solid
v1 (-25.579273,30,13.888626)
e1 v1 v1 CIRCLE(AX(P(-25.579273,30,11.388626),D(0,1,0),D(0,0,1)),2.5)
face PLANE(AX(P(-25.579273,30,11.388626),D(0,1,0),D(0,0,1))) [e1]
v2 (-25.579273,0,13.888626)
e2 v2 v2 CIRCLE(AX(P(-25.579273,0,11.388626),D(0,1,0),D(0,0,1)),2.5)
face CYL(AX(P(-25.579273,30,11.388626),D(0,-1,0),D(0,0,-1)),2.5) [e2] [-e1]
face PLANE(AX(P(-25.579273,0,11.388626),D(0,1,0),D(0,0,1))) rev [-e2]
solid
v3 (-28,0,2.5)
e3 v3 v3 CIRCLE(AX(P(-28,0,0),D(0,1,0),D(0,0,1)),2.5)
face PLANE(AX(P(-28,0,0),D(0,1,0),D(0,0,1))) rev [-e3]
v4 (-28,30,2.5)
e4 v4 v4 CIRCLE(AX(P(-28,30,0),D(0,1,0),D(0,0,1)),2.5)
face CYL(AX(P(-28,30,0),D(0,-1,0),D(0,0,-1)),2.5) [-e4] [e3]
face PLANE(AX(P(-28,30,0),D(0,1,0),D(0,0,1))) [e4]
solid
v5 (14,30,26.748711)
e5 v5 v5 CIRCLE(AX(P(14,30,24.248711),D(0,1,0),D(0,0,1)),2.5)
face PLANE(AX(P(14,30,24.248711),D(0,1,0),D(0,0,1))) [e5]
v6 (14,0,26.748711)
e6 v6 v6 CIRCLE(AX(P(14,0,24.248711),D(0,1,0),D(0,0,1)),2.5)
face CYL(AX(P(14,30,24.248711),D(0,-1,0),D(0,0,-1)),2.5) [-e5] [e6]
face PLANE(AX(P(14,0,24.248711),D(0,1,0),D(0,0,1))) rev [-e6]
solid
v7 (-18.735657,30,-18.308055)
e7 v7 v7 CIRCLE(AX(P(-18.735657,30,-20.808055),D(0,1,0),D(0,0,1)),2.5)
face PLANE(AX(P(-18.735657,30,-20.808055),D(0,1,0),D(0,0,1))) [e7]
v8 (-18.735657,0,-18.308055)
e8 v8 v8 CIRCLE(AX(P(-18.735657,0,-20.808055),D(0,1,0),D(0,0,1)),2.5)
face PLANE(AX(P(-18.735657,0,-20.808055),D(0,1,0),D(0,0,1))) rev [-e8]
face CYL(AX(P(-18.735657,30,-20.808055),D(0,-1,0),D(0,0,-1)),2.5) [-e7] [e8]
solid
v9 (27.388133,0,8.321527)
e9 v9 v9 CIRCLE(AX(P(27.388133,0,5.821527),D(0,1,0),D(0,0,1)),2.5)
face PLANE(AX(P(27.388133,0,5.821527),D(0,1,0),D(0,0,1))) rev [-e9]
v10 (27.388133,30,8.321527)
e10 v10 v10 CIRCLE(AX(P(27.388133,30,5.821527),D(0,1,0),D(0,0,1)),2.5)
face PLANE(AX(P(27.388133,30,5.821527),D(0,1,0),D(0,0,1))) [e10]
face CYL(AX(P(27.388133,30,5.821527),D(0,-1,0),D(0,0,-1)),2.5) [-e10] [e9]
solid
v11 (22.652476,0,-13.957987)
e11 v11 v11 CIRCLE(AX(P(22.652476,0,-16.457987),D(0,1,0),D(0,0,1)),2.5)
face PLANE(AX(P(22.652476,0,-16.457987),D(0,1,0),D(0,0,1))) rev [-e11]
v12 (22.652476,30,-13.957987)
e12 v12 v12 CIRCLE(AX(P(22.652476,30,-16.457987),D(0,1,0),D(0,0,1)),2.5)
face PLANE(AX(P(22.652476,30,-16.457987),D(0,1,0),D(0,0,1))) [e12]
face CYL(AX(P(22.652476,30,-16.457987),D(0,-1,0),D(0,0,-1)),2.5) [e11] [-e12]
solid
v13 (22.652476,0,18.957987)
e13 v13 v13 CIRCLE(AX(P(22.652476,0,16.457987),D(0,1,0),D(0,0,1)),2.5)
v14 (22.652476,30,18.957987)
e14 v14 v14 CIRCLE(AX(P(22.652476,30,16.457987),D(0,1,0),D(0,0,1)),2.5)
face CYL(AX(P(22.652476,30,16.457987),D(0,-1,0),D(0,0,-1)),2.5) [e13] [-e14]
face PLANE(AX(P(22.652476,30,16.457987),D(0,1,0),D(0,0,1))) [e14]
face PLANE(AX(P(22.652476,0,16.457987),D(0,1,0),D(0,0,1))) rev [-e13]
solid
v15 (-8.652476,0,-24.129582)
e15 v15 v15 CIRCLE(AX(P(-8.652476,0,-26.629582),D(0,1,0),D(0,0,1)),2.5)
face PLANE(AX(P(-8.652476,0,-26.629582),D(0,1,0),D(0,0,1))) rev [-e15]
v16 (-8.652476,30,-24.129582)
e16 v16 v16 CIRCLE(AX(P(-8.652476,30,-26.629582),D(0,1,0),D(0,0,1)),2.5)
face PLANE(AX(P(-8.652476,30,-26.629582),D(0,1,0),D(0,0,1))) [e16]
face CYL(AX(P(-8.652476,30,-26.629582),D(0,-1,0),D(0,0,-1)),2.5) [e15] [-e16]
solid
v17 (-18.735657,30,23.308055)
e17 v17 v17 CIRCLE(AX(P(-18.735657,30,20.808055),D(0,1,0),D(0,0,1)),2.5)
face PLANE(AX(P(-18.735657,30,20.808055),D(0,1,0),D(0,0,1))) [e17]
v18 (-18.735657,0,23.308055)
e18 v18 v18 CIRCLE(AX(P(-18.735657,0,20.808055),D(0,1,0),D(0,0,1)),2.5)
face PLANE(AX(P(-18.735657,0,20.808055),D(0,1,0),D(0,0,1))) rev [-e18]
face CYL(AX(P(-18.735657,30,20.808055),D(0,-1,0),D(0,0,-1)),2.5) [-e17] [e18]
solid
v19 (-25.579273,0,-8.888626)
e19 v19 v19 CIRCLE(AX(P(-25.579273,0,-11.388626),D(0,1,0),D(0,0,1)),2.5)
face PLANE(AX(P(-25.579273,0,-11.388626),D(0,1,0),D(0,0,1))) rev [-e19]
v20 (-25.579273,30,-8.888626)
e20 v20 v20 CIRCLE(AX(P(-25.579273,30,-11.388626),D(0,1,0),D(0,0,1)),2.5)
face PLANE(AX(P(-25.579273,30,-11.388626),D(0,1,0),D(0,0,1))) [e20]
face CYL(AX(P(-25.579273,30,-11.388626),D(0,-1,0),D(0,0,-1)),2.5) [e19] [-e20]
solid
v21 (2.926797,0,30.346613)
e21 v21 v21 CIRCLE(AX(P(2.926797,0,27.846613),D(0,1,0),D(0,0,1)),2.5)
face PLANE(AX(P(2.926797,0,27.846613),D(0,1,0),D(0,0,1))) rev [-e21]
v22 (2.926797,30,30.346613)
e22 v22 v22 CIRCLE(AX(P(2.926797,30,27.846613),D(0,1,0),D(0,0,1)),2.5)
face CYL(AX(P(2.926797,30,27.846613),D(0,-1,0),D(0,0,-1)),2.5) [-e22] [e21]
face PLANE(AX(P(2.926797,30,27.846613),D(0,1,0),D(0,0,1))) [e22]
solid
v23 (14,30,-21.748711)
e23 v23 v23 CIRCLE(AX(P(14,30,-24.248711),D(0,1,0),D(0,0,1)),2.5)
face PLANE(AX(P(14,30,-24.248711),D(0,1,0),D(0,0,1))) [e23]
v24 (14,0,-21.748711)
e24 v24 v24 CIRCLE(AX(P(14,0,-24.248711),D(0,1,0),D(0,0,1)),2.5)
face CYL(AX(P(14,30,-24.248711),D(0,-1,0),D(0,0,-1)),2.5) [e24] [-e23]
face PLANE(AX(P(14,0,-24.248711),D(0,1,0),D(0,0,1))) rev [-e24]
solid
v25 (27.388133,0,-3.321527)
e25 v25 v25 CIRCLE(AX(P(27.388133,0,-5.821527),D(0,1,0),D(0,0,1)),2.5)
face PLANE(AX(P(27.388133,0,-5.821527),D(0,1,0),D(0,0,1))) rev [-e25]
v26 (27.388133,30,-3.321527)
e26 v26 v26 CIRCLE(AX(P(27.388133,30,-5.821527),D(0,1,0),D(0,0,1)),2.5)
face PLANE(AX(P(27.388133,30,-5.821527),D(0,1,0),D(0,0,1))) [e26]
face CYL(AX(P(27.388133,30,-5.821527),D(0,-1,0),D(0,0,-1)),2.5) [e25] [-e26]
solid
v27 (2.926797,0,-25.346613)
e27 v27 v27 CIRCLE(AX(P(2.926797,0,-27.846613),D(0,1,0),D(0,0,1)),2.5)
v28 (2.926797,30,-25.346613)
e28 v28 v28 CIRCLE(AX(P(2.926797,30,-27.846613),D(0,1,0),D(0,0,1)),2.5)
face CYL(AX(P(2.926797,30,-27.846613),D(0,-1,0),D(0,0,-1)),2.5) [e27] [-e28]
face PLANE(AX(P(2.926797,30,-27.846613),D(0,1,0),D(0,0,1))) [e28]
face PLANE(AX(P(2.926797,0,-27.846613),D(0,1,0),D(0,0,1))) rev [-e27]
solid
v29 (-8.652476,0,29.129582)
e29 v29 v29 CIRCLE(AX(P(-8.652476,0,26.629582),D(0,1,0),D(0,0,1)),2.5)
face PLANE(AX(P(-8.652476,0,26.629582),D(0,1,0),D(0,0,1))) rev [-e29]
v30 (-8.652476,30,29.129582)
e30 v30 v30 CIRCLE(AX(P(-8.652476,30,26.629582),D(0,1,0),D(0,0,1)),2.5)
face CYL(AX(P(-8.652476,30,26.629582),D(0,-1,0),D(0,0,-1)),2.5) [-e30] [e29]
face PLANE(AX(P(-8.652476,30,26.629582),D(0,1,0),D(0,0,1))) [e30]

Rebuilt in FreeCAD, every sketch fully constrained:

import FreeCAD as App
import Part
import Sketcher

V = App.Vector
Q = App.Units.Quantity

doc = App.newDocument("Part")
params = doc.addObject("Spreadsheet::Sheet", "Params")
for row, (alias, value) in enumerate([
    ("sketch1_diameter", "5 mm"),
    ("pad1_length", "30 mm"),
    ("sketch2_diameter", "5 mm"),
    ("pad2_length", "30 mm"),
    ("sketch3_diameter", "5 mm"),
    ("pad3_length", "30 mm"),
    ("sketch4_diameter", "5 mm"),
    ("pad4_length", "30 mm"),
    ("sketch5_diameter", "5 mm"),
    ("pad5_length", "30 mm"),
    ("sketch6_diameter", "5 mm"),
    ("pad6_length", "30 mm"),
    ("sketch7_diameter", "5 mm"),
    ("pad7_length", "30 mm"),
    ("sketch8_diameter", "5 mm"),
    ("pad8_length", "30 mm"),
    ("sketch9_diameter", "5 mm"),
    ("pad9_length", "30 mm"),
    ("sketch10_diameter", "5 mm"),
    ("pad10_length", "30 mm"),
    ("sketch11_diameter", "5 mm"),
    ("pad11_length", "30 mm"),
    ("sketch12_diameter", "5 mm"),
    ("pad12_length", "30 mm"),
    ("sketch13_diameter", "5 mm"),
    ("pad13_length", "30 mm"),
    ("sketch14_diameter", "5 mm"),
    ("pad14_length", "30 mm"),
    ("sketch15_diameter", "5 mm"),
    ("pad15_length", "30 mm"),
], start=1):
    params.set(f"A{row}", alias)
    params.set(f"B{row}", "=" + value)
    params.setAlias(f"B{row}", alias)

body = doc.addObject("PartDesign::Body", "Body")

# Sketch on XZ plane
sketch1 = body.newObject("Sketcher::SketchObject", "Sketch")
sketch1.AttachmentSupport = (doc.getObject("XZ_Plane"), [""])
sketch1.MapMode = "FlatFace"
sketch1.addGeometry(Part.Circle(V(27.4, -5.8, 0), V(0, 0, 1), 2.5), False)
sketch1.addConstraint(Sketcher.Constraint("Diameter", 0, Q("5 mm")))
sketch1.addConstraint(Sketcher.Constraint("DistanceX", -1, 1, 0, 3, Q("27.388133 mm")))
sketch1.addConstraint(Sketcher.Constraint("DistanceY", 0, 3, -1, 1, Q("5.821527 mm")))
sketch1.setExpression("Constraints[0]", "Params.sketch1_diameter")
pad1 = body.newObject("PartDesign::Pad", "Pad")
pad1.Profile = sketch1
pad1.setExpression("Length", "Params.pad1_length")
pad1.Reversed = True
body2 = doc.addObject("PartDesign::Body", "Body001")

# Sketch on XZ plane
sketch2 = body2.newObject("Sketcher::SketchObject", "Sketch001")
sketch2.AttachmentSupport = (doc.getObject("XZ_Plane001"), [""])
sketch2.MapMode = "FlatFace"
sketch2.addGeometry(Part.Circle(V(27.4, 5.8, 0), V(0, 0, 1), 2.5), False)
sketch2.addConstraint(Sketcher.Constraint("Diameter", 0, Q("5 mm")))
sketch2.addConstraint(Sketcher.Constraint("DistanceX", -1, 1, 0, 3, Q("27.388133 mm")))
sketch2.addConstraint(Sketcher.Constraint("DistanceY", -1, 1, 0, 3, Q("5.821527 mm")))
sketch2.setExpression("Constraints[0]", "Params.sketch2_diameter")
pad2 = body2.newObject("PartDesign::Pad", "Pad001")
pad2.Profile = sketch2
pad2.setExpression("Length", "Params.pad2_length")
pad2.Reversed = True
body3 = doc.addObject("PartDesign::Body", "Body002")

# Sketch on XZ plane
sketch3 = body3.newObject("Sketcher::SketchObject", "Sketch002")
sketch3.AttachmentSupport = (doc.getObject("XZ_Plane002"), [""])
sketch3.MapMode = "FlatFace"
sketch3.addGeometry(Part.Circle(V(22.7, 16.5, 0), V(0, 0, 1), 2.5), False)
sketch3.addConstraint(Sketcher.Constraint("Diameter", 0, Q("5 mm")))
sketch3.addConstraint(Sketcher.Constraint("DistanceX", -1, 1, 0, 3, Q("22.652476 mm")))
sketch3.addConstraint(Sketcher.Constraint("DistanceY", -1, 1, 0, 3, Q("16.457987 mm")))
sketch3.setExpression("Constraints[0]", "Params.sketch3_diameter")
pad3 = body3.newObject("PartDesign::Pad", "Pad002")
pad3.Profile = sketch3
pad3.setExpression("Length", "Params.pad3_length")
pad3.Reversed = True
body4 = doc.addObject("PartDesign::Body", "Body003")

# Sketch on XZ plane
sketch4 = body4.newObject("Sketcher::SketchObject", "Sketch003")
sketch4.AttachmentSupport = (doc.getObject("XZ_Plane003"), [""])
sketch4.MapMode = "FlatFace"
sketch4.addGeometry(Part.Circle(V(14, 24.2, 0), V(0, 0, 1), 2.5), False)
sketch4.addConstraint(Sketcher.Constraint("Diameter", 0, Q("5 mm")))
sketch4.addConstraint(Sketcher.Constraint("DistanceX", -1, 1, 0, 3, Q("14 mm")))
sketch4.addConstraint(Sketcher.Constraint("DistanceY", -1, 1, 0, 3, Q("24.248711 mm")))
sketch4.setExpression("Constraints[0]", "Params.sketch4_diameter")
pad4 = body4.newObject("PartDesign::Pad", "Pad003")
pad4.Profile = sketch4
pad4.setExpression("Length", "Params.pad4_length")
pad4.Reversed = True
body5 = doc.addObject("PartDesign::Body", "Body004")

# Sketch on XZ plane
sketch5 = body5.newObject("Sketcher::SketchObject", "Sketch004")
sketch5.AttachmentSupport = (doc.getObject("XZ_Plane004"), [""])
sketch5.MapMode = "FlatFace"
sketch5.addGeometry(Part.Circle(V(2.9, 27.8, 0), V(0, 0, 1), 2.5), False)
sketch5.addConstraint(Sketcher.Constraint("Diameter", 0, Q("5 mm")))
sketch5.addConstraint(Sketcher.Constraint("DistanceX", -1, 1, 0, 3, Q("2.926797 mm")))
sketch5.addConstraint(Sketcher.Constraint("DistanceY", -1, 1, 0, 3, Q("27.846613 mm")))
sketch5.setExpression("Constraints[0]", "Params.sketch5_diameter")
pad5 = body5.newObject("PartDesign::Pad", "Pad004")
pad5.Profile = sketch5
pad5.setExpression("Length", "Params.pad5_length")
pad5.Reversed = True
body6 = doc.addObject("PartDesign::Body", "Body005")

# Sketch on XZ plane
sketch6 = body6.newObject("Sketcher::SketchObject", "Sketch005")
sketch6.AttachmentSupport = (doc.getObject("XZ_Plane005"), [""])
sketch6.MapMode = "FlatFace"
sketch6.addGeometry(Part.Circle(V(-8.7, 26.6, 0), V(0, 0, 1), 2.5), False)
sketch6.addConstraint(Sketcher.Constraint("Diameter", 0, Q("5 mm")))
sketch6.addConstraint(Sketcher.Constraint("DistanceX", 0, 3, -1, 1, Q("8.652476 mm")))
sketch6.addConstraint(Sketcher.Constraint("DistanceY", -1, 1, 0, 3, Q("26.629582 mm")))
sketch6.setExpression("Constraints[0]", "Params.sketch6_diameter")
pad6 = body6.newObject("PartDesign::Pad", "Pad005")
pad6.Profile = sketch6
pad6.setExpression("Length", "Params.pad6_length")
pad6.Reversed = True
body7 = doc.addObject("PartDesign::Body", "Body006")

# Sketch on XZ plane
sketch7 = body7.newObject("Sketcher::SketchObject", "Sketch006")
sketch7.AttachmentSupport = (doc.getObject("XZ_Plane006"), [""])
sketch7.MapMode = "FlatFace"
sketch7.addGeometry(Part.Circle(V(-18.7, 20.8, 0), V(0, 0, 1), 2.5), False)
sketch7.addConstraint(Sketcher.Constraint("Diameter", 0, Q("5 mm")))
sketch7.addConstraint(Sketcher.Constraint("DistanceX", 0, 3, -1, 1, Q("18.735657 mm")))
sketch7.addConstraint(Sketcher.Constraint("DistanceY", -1, 1, 0, 3, Q("20.808055 mm")))
sketch7.setExpression("Constraints[0]", "Params.sketch7_diameter")
pad7 = body7.newObject("PartDesign::Pad", "Pad006")
pad7.Profile = sketch7
pad7.setExpression("Length", "Params.pad7_length")
pad7.Reversed = True
body8 = doc.addObject("PartDesign::Body", "Body007")

# Sketch on XZ plane
sketch8 = body8.newObject("Sketcher::SketchObject", "Sketch007")
sketch8.AttachmentSupport = (doc.getObject("XZ_Plane007"), [""])
sketch8.MapMode = "FlatFace"
sketch8.addGeometry(Part.Circle(V(-25.6, 11.4, 0), V(0, 0, 1), 2.5), False)
sketch8.addConstraint(Sketcher.Constraint("Diameter", 0, Q("5 mm")))
sketch8.addConstraint(Sketcher.Constraint("DistanceX", 0, 3, -1, 1, Q("25.579273 mm")))
sketch8.addConstraint(Sketcher.Constraint("DistanceY", -1, 1, 0, 3, Q("11.388626 mm")))
sketch8.setExpression("Constraints[0]", "Params.sketch8_diameter")
pad8 = body8.newObject("PartDesign::Pad", "Pad007")
pad8.Profile = sketch8
pad8.setExpression("Length", "Params.pad8_length")
pad8.Reversed = True
body9 = doc.addObject("PartDesign::Body", "Body008")

# Sketch on XZ plane
sketch9 = body9.newObject("Sketcher::SketchObject", "Sketch008")
sketch9.AttachmentSupport = (doc.getObject("XZ_Plane008"), [""])
sketch9.MapMode = "FlatFace"
sketch9.addGeometry(Part.Circle(V(-28, 0, 0), V(0, 0, 1), 2.5), False)
sketch9.addConstraint(Sketcher.Constraint("PointOnObject", 0, 3, -1))
sketch9.addConstraint(Sketcher.Constraint("Diameter", 0, Q("5 mm")))
sketch9.addConstraint(Sketcher.Constraint("DistanceX", 0, 3, -1, 1, Q("28 mm")))
sketch9.setExpression("Constraints[1]", "Params.sketch9_diameter")
pad9 = body9.newObject("PartDesign::Pad", "Pad008")
pad9.Profile = sketch9
pad9.setExpression("Length", "Params.pad9_length")
pad9.Reversed = True
body10 = doc.addObject("PartDesign::Body", "Body009")

# Sketch on XZ plane
sketch10 = body10.newObject("Sketcher::SketchObject", "Sketch009")
sketch10.AttachmentSupport = (doc.getObject("XZ_Plane009"), [""])
sketch10.MapMode = "FlatFace"
sketch10.addGeometry(Part.Circle(V(-25.6, -11.4, 0), V(0, 0, 1), 2.5), False)
sketch10.addConstraint(Sketcher.Constraint("Diameter", 0, Q("5 mm")))
sketch10.addConstraint(Sketcher.Constraint("DistanceX", 0, 3, -1, 1, Q("25.579273 mm")))
sketch10.addConstraint(Sketcher.Constraint("DistanceY", 0, 3, -1, 1, Q("11.388626 mm")))
sketch10.setExpression("Constraints[0]", "Params.sketch10_diameter")
pad10 = body10.newObject("PartDesign::Pad", "Pad009")
pad10.Profile = sketch10
pad10.setExpression("Length", "Params.pad10_length")
pad10.Reversed = True
body11 = doc.addObject("PartDesign::Body", "Body010")

# Sketch on XZ plane
sketch11 = body11.newObject("Sketcher::SketchObject", "Sketch010")
sketch11.AttachmentSupport = (doc.getObject("XZ_Plane010"), [""])
sketch11.MapMode = "FlatFace"
sketch11.addGeometry(Part.Circle(V(-18.7, -20.8, 0), V(0, 0, 1), 2.5), False)
sketch11.addConstraint(Sketcher.Constraint("Diameter", 0, Q("5 mm")))
sketch11.addConstraint(Sketcher.Constraint("DistanceX", 0, 3, -1, 1, Q("18.735657 mm")))
sketch11.addConstraint(Sketcher.Constraint("DistanceY", 0, 3, -1, 1, Q("20.808055 mm")))
sketch11.setExpression("Constraints[0]", "Params.sketch11_diameter")
pad11 = body11.newObject("PartDesign::Pad", "Pad010")
pad11.Profile = sketch11
pad11.setExpression("Length", "Params.pad11_length")
pad11.Reversed = True
body12 = doc.addObject("PartDesign::Body", "Body011")

# Sketch on XZ plane
sketch12 = body12.newObject("Sketcher::SketchObject", "Sketch011")
sketch12.AttachmentSupport = (doc.getObject("XZ_Plane011"), [""])
sketch12.MapMode = "FlatFace"
sketch12.addGeometry(Part.Circle(V(-8.7, -26.6, 0), V(0, 0, 1), 2.5), False)
sketch12.addConstraint(Sketcher.Constraint("Diameter", 0, Q("5 mm")))
sketch12.addConstraint(Sketcher.Constraint("DistanceX", 0, 3, -1, 1, Q("8.652476 mm")))
sketch12.addConstraint(Sketcher.Constraint("DistanceY", 0, 3, -1, 1, Q("26.629582 mm")))
sketch12.setExpression("Constraints[0]", "Params.sketch12_diameter")
pad12 = body12.newObject("PartDesign::Pad", "Pad011")
pad12.Profile = sketch12
pad12.setExpression("Length", "Params.pad12_length")
pad12.Reversed = True
body13 = doc.addObject("PartDesign::Body", "Body012")

# Sketch on XZ plane
sketch13 = body13.newObject("Sketcher::SketchObject", "Sketch012")
sketch13.AttachmentSupport = (doc.getObject("XZ_Plane012"), [""])
sketch13.MapMode = "FlatFace"
sketch13.addGeometry(Part.Circle(V(2.9, -27.8, 0), V(0, 0, 1), 2.5), False)
sketch13.addConstraint(Sketcher.Constraint("Diameter", 0, Q("5 mm")))
sketch13.addConstraint(Sketcher.Constraint("DistanceX", -1, 1, 0, 3, Q("2.926797 mm")))
sketch13.addConstraint(Sketcher.Constraint("DistanceY", 0, 3, -1, 1, Q("27.846613 mm")))
sketch13.setExpression("Constraints[0]", "Params.sketch13_diameter")
pad13 = body13.newObject("PartDesign::Pad", "Pad012")
pad13.Profile = sketch13
pad13.setExpression("Length", "Params.pad13_length")
pad13.Reversed = True
body14 = doc.addObject("PartDesign::Body", "Body013")

# Sketch on XZ plane
sketch14 = body14.newObject("Sketcher::SketchObject", "Sketch013")
sketch14.AttachmentSupport = (doc.getObject("XZ_Plane013"), [""])
sketch14.MapMode = "FlatFace"
sketch14.addGeometry(Part.Circle(V(14, -24.2, 0), V(0, 0, 1), 2.5), False)
sketch14.addConstraint(Sketcher.Constraint("Diameter", 0, Q("5 mm")))
sketch14.addConstraint(Sketcher.Constraint("DistanceX", -1, 1, 0, 3, Q("14 mm")))
sketch14.addConstraint(Sketcher.Constraint("DistanceY", 0, 3, -1, 1, Q("24.248711 mm")))
sketch14.setExpression("Constraints[0]", "Params.sketch14_diameter")
pad14 = body14.newObject("PartDesign::Pad", "Pad013")
pad14.Profile = sketch14
pad14.setExpression("Length", "Params.pad14_length")
pad14.Reversed = True
body15 = doc.addObject("PartDesign::Body", "Body014")

# Sketch on XZ plane
sketch15 = body15.newObject("Sketcher::SketchObject", "Sketch014")
sketch15.AttachmentSupport = (doc.getObject("XZ_Plane014"), [""])
sketch15.MapMode = "FlatFace"
sketch15.addGeometry(Part.Circle(V(22.7, -16.5, 0), V(0, 0, 1), 2.5), False)
sketch15.addConstraint(Sketcher.Constraint("Diameter", 0, Q("5 mm")))
sketch15.addConstraint(Sketcher.Constraint("DistanceX", -1, 1, 0, 3, Q("22.652476 mm")))
sketch15.addConstraint(Sketcher.Constraint("DistanceY", 0, 3, -1, 1, Q("16.457987 mm")))
sketch15.setExpression("Constraints[0]", "Params.sketch15_diameter")
pad15 = body15.newObject("PartDesign::Pad", "Pad014")
pad15.Profile = sketch15
pad15.setExpression("Length", "Params.pad15_length")
pad15.Reversed = True

doc.recompute()
